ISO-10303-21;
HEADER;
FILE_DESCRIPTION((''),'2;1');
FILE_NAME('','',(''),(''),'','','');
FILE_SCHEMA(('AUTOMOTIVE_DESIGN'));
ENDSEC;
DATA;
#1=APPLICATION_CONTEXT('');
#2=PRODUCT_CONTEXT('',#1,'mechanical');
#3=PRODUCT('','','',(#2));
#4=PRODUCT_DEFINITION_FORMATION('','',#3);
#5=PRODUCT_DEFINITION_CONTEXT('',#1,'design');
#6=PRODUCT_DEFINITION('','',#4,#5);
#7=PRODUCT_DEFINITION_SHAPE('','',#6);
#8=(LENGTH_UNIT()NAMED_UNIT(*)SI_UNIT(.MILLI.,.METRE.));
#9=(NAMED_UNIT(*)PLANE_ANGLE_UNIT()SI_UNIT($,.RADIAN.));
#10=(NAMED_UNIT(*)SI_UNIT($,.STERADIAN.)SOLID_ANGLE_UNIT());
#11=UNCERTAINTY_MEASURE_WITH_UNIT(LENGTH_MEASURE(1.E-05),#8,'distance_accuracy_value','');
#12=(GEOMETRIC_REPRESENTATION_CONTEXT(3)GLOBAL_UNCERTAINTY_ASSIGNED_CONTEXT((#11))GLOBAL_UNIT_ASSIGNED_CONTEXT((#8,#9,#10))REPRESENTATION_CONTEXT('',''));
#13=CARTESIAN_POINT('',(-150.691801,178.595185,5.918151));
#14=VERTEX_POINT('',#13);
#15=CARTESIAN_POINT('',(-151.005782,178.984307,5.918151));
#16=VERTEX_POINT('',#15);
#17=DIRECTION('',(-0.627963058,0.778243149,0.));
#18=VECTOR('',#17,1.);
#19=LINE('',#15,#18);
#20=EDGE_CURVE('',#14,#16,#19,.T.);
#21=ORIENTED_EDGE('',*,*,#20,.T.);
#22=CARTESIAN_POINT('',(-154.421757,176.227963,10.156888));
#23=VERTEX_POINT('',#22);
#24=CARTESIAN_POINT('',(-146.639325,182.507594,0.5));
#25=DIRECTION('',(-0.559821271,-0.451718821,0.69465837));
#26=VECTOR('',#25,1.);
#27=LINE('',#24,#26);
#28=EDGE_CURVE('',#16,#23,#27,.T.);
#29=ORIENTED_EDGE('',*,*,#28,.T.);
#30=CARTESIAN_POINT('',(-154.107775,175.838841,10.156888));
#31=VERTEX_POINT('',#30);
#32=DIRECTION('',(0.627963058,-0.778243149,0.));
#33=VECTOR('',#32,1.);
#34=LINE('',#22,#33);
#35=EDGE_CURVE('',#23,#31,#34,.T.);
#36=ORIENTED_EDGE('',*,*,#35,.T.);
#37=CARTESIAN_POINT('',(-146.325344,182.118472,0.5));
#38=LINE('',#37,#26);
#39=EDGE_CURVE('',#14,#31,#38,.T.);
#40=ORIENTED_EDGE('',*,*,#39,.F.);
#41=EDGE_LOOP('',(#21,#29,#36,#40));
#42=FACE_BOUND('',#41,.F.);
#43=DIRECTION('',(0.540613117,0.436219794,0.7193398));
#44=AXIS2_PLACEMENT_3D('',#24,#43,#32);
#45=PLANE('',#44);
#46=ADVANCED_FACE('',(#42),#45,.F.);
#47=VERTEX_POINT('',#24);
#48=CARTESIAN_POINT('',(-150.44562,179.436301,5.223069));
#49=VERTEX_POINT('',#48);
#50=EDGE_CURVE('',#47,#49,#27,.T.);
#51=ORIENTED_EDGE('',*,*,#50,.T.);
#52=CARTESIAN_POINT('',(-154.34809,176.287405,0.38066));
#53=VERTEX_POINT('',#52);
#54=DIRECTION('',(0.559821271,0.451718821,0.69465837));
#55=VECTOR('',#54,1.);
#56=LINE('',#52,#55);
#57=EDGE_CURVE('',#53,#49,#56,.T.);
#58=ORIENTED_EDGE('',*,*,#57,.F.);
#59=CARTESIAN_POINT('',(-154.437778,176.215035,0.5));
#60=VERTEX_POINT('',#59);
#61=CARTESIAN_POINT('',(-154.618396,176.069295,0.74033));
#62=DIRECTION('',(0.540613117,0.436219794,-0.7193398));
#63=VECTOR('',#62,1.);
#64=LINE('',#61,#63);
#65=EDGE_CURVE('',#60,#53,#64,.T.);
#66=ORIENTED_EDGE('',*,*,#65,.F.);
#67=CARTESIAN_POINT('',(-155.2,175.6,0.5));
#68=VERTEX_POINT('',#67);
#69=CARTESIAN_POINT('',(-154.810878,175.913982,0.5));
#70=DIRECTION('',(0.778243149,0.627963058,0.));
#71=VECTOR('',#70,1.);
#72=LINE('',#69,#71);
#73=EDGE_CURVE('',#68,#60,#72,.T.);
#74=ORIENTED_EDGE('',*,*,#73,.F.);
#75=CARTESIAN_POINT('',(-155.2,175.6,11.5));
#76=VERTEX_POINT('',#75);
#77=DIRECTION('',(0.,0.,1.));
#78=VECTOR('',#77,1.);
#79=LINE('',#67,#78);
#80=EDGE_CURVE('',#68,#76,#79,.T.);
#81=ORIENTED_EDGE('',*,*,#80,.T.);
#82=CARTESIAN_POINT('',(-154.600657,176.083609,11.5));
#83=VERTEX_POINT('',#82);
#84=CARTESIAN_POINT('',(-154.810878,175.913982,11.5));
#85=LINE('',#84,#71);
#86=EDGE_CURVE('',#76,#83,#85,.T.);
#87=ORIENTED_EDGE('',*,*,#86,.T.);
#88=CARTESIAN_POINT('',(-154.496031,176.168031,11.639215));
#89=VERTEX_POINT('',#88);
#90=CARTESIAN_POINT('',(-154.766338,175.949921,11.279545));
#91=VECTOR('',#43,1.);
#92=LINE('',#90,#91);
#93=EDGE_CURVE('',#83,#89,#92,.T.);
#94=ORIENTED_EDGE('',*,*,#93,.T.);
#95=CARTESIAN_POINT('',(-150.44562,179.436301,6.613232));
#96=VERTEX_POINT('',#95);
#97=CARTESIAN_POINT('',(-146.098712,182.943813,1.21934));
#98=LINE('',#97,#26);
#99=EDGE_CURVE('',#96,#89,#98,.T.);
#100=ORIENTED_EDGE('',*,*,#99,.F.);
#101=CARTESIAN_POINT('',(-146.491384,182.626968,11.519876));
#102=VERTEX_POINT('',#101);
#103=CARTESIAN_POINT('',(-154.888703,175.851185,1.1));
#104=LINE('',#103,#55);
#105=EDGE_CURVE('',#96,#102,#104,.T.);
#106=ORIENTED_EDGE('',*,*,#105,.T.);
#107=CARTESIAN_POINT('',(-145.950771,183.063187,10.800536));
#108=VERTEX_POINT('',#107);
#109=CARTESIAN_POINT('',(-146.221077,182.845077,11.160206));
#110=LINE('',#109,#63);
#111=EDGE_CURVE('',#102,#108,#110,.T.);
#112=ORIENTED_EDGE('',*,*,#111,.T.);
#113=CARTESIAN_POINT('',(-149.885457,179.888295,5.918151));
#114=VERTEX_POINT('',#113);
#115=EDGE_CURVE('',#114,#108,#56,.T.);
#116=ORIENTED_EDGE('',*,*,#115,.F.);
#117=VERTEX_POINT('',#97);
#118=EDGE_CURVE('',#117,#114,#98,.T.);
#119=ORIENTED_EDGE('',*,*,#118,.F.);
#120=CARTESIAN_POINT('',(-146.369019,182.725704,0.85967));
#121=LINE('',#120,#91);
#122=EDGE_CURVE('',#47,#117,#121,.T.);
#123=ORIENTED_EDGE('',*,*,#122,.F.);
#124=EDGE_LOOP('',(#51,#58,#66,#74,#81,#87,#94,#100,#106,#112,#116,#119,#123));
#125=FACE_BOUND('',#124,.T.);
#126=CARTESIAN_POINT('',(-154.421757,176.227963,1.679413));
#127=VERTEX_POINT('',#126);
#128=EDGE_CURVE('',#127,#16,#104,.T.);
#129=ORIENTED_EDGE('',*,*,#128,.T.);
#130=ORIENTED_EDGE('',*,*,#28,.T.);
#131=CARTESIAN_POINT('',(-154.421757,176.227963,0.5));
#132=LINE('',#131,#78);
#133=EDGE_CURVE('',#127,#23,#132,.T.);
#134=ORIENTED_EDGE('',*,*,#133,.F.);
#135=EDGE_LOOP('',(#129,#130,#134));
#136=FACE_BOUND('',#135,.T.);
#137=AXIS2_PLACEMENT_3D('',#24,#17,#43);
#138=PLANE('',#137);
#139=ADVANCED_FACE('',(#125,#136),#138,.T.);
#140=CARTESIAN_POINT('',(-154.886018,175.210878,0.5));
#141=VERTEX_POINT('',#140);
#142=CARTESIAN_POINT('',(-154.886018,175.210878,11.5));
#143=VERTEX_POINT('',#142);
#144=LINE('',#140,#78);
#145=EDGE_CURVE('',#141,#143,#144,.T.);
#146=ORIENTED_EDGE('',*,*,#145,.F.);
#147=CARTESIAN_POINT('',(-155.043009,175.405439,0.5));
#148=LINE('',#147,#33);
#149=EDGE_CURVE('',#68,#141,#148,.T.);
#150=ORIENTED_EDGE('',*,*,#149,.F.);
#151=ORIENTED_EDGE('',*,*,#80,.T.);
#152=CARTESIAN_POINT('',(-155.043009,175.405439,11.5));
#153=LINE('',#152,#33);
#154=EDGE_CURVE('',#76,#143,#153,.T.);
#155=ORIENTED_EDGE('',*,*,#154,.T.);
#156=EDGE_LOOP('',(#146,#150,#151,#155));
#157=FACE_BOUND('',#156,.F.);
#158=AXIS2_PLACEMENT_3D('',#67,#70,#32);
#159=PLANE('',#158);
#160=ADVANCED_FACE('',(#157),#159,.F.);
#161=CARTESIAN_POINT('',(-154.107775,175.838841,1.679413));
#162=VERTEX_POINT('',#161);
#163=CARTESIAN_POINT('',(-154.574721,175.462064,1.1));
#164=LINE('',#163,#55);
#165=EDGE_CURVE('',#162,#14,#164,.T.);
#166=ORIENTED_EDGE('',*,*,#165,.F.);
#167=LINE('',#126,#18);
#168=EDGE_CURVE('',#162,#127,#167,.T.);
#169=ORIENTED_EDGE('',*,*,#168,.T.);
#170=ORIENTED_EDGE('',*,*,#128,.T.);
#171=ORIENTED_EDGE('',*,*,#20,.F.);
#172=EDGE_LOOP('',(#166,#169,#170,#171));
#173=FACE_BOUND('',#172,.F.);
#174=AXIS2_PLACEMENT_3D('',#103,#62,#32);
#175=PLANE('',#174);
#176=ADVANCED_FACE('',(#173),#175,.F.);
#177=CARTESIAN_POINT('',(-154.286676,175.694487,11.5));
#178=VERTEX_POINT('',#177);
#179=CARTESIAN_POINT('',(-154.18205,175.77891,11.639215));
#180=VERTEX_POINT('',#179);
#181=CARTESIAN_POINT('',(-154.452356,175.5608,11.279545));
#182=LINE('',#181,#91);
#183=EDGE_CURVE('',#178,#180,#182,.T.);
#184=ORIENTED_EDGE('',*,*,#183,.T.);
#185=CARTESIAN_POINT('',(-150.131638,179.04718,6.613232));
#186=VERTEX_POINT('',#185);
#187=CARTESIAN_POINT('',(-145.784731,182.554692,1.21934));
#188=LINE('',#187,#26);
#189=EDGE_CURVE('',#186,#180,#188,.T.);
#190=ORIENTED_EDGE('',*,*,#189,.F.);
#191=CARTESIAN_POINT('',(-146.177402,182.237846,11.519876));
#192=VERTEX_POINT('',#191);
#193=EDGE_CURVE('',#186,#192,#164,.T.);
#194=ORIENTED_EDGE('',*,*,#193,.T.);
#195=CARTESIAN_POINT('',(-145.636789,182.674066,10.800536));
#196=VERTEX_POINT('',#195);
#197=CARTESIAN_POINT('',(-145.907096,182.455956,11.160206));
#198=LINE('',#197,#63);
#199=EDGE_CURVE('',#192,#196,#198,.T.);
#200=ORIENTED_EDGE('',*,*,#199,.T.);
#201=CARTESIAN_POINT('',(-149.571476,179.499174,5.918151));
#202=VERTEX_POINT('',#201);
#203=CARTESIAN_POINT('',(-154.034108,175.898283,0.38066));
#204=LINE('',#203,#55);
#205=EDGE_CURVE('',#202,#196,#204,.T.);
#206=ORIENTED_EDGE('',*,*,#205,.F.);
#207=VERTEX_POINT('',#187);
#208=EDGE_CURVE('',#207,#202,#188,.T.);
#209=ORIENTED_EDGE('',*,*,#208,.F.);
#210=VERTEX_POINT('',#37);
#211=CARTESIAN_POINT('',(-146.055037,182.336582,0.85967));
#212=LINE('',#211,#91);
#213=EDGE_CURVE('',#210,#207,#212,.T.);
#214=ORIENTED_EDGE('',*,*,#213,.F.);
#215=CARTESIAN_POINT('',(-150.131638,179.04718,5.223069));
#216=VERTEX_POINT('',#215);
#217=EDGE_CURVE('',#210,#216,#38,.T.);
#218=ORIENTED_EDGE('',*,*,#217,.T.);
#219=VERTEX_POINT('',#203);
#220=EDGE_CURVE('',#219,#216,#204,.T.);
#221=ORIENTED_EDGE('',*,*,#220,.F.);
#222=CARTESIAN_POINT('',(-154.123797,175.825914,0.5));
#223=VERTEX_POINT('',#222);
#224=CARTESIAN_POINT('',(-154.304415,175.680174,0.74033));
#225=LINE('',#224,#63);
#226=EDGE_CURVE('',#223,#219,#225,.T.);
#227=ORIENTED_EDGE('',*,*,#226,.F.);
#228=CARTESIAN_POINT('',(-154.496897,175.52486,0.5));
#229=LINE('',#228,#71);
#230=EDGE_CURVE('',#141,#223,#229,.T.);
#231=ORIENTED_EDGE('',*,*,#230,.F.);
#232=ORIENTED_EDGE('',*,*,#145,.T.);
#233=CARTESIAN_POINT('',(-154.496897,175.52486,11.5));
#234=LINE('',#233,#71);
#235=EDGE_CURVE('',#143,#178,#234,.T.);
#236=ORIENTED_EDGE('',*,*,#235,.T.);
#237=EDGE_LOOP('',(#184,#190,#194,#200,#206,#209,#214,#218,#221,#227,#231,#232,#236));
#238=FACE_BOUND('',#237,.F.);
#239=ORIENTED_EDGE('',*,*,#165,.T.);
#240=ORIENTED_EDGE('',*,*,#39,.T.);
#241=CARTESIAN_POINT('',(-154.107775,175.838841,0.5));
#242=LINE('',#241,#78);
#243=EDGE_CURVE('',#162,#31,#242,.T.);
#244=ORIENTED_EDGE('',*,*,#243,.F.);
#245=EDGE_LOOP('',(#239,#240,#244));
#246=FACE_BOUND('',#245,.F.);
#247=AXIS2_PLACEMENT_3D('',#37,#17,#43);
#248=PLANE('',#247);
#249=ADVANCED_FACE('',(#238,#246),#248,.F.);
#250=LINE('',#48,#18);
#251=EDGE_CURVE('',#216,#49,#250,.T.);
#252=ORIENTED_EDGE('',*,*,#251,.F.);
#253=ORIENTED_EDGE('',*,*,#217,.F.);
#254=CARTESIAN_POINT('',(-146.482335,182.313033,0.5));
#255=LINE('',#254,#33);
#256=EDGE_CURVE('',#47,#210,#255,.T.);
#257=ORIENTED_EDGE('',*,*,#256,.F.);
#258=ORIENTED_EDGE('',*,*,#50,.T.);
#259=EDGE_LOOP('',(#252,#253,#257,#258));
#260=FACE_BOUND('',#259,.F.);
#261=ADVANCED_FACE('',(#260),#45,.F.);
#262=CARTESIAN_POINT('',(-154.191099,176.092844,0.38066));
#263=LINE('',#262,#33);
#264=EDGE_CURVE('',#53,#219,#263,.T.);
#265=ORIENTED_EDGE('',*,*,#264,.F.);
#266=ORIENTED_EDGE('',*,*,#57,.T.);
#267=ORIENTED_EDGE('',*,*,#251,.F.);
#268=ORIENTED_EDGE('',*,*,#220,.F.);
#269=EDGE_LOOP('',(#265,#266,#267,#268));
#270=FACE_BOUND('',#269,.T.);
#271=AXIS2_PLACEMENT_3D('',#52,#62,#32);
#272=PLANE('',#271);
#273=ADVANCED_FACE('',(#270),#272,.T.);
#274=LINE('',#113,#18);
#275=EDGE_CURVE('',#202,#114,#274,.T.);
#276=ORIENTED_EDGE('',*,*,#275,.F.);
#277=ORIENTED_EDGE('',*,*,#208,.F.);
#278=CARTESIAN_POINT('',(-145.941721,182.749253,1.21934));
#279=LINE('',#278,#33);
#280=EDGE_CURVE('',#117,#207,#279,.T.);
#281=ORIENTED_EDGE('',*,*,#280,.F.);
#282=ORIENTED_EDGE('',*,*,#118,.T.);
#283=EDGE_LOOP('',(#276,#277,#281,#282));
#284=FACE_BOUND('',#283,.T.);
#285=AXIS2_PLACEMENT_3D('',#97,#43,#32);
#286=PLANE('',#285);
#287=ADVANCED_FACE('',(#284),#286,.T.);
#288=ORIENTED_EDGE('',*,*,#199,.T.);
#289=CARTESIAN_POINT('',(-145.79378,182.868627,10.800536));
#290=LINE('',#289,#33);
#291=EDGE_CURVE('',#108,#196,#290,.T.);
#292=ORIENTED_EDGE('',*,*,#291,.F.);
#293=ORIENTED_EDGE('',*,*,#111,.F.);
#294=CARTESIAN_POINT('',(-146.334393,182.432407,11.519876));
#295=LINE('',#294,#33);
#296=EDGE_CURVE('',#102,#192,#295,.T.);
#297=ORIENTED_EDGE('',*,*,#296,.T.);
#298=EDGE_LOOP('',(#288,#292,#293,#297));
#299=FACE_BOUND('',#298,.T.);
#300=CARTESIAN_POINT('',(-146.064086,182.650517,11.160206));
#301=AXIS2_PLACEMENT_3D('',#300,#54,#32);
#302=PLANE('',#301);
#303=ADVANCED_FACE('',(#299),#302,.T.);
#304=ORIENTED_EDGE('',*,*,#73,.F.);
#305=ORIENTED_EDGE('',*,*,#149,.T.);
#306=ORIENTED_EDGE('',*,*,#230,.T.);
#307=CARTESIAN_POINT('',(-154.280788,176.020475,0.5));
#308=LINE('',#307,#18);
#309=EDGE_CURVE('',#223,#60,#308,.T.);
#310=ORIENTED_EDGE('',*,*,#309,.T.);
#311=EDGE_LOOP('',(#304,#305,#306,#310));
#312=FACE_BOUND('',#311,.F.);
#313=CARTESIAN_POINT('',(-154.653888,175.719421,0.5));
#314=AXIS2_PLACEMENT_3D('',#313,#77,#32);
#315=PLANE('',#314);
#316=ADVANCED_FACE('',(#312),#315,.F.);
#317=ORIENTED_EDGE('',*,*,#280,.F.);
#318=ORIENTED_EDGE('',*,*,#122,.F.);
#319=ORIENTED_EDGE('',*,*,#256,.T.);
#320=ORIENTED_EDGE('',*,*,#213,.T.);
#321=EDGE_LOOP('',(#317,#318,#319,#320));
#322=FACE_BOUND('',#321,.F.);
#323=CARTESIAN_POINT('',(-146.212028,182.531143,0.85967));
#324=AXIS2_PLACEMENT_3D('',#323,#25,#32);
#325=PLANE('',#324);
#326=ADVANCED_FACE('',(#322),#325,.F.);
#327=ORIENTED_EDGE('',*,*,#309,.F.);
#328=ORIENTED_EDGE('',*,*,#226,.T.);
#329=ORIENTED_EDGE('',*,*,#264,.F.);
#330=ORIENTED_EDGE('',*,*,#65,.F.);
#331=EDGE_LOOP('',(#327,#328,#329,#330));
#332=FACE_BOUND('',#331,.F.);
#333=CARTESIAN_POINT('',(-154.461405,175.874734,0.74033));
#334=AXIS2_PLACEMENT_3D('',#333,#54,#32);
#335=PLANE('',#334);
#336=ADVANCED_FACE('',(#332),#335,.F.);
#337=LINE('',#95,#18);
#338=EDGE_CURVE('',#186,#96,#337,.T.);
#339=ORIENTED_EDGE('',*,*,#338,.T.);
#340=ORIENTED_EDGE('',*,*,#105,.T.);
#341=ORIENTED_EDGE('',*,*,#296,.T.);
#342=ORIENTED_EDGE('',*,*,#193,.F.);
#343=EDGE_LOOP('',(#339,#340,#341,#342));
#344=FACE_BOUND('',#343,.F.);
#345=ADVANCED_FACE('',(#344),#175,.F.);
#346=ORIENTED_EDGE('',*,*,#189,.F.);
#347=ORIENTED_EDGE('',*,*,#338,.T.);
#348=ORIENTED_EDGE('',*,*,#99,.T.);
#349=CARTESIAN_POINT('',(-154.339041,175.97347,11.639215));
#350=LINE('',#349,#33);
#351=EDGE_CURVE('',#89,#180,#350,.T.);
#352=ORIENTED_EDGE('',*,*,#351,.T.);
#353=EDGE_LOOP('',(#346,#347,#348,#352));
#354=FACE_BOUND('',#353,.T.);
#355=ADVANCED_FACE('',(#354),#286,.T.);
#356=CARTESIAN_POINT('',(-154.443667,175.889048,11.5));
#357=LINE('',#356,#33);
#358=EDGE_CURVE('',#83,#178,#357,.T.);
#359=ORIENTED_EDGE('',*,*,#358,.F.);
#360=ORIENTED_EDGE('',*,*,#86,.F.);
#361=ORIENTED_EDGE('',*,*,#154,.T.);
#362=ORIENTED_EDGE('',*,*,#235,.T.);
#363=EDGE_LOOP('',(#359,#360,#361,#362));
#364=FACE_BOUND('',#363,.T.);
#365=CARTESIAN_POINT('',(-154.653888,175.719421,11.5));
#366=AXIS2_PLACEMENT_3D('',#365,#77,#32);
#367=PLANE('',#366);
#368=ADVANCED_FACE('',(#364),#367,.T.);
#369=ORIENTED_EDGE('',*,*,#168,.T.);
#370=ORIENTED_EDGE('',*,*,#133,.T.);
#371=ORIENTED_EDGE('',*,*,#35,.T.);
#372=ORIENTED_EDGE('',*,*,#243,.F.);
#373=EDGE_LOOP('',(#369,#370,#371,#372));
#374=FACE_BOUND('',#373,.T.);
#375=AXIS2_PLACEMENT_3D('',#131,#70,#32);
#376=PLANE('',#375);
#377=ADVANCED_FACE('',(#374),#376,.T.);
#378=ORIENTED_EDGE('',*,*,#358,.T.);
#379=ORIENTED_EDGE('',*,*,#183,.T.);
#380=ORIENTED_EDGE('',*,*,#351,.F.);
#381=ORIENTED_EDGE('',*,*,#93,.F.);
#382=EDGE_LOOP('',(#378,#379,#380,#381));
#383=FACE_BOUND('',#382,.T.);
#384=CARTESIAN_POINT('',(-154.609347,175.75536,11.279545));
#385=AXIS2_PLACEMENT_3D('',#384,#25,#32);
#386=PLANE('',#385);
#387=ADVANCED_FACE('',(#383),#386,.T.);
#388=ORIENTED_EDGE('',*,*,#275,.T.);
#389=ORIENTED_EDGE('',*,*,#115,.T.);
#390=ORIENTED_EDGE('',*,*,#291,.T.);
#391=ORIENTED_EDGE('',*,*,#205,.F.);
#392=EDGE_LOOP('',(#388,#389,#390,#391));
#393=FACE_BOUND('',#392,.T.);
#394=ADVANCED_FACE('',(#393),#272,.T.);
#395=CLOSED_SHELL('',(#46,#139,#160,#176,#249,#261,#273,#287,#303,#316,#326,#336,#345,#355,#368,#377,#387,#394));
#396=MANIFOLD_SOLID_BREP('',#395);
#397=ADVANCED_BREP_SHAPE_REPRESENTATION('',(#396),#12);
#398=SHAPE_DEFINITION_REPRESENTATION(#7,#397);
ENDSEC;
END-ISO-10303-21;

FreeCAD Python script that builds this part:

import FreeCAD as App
import Part
import Sketcher
from FreeCAD import Vector

doc = App.newDocument("Part")
params = doc.addObject("Spreadsheet::Sheet", "Params")
for row, (alias, value) in enumerate([
    ("sketch1_height", "1 mm"),
    ("sketch1_width", "0.5 mm"),
    ("pad1_length", "15 mm"),
    ("sketch2_height", "1 mm"),
    ("sketch2_width", "0.5 mm"),
    ("pad2_length", "15 mm"),
    ("sketch3_height", "1 mm"),
    ("sketch3_width", "0.5 mm"),
    ("pad3_length", "11 mm"),
], start=1):
    params.set(f"A{row}", alias)
    params.set(f"B{row}", "=" + value)
    params.setAlias(f"B{row}", alias)

body = doc.addObject("PartDesign::Body", "Body")

# Sketch on XY plane
sketch1 = body.newObject("Sketcher::SketchObject", "Sketch")
sketch1.AttachmentSupport = (doc.getObject("XY_Plane"), [""])
sketch1.MapMode = "FlatFace"
sketch1.addGeometry([
    Part.LineSegment(Vector(0, 1, 0), Vector(0, 0, 0)),
    Part.LineSegment(Vector(0, 0, 0), Vector(0.5, 0, 0)),
    Part.LineSegment(Vector(0.5, 0, 0), Vector(0.5, 1, 0)),
    Part.LineSegment(Vector(0.5, 1, 0), Vector(0, 1, 0)),
], False)
sketch1.addConstraint([
    Sketcher.Constraint("Coincident", 0, 2, 1, 1),
    Sketcher.Constraint("Coincident", 1, 2, 2, 1),
    Sketcher.Constraint("Coincident", 2, 2, 3, 1),
    Sketcher.Constraint("Coincident", 3, 2, 0, 1),
    Sketcher.Constraint("Vertical", 0),
    Sketcher.Constraint("Horizontal", 1),
    Sketcher.Constraint("Vertical", 2),
    Sketcher.Constraint("Horizontal", 3),
    Sketcher.Constraint("Coincident", 0, 2, -1, 1),
    Sketcher.Constraint("DistanceY", 0, 2, 0, 1, 1.0),
    Sketcher.Constraint("DistanceX", 1, 1, 1, 2, 0.5),
])
sketch1.setExpression("Constraints[9]", "Params.sketch1_height")
sketch1.setExpression("Constraints[10]", "Params.sketch1_width")
pad1 = body.newObject("PartDesign::Pad", "Pad")
pad1.Profile = sketch1
pad1.setExpression("Length", "Params.pad1_length")
body2 = doc.addObject("PartDesign::Body", "Body001")
doc.recompute()

body.Placement = App.Placement(Vector(0, 0, 0), App.Rotation(Vector(1, 0, 0), 46))
boolean = body2.newObject("PartDesign::Boolean", "Boolean")
boolean.Type = "Fuse"
boolean.addObjects([body])
body3 = doc.addObject("PartDesign::Body", "Body002")
doc.recompute()

body2.Placement = App.Placement(Vector(0, 11, 0.5), App.Rotation(Vector(0, 0, 1), 0))
boolean2 = body3.newObject("PartDesign::Boolean", "Boolean001")
boolean2.Type = "Fuse"
boolean2.addObjects([body2])
body4 = doc.addObject("PartDesign::Body", "Body003")

# Sketch on XY plane
sketch2 = body4.newObject("Sketcher::SketchObject", "Sketch001")
sketch2.AttachmentSupport = (doc.getObject("XY_Plane003"), [""])
sketch2.MapMode = "FlatFace"
sketch2.addGeometry([
    Part.LineSegment(Vector(0, 1, 0), Vector(0, 0, 0)),
    Part.LineSegment(Vector(0, 0, 0), Vector(0.5, 0, 0)),
    Part.LineSegment(Vector(0.5, 0, 0), Vector(0.5, 1, 0)),
    Part.LineSegment(Vector(0.5, 1, 0), Vector(0, 1, 0)),
], False)
sketch2.addConstraint([
    Sketcher.Constraint("Coincident", 0, 2, 1, 1),
    Sketcher.Constraint("Coincident", 1, 2, 2, 1),
    Sketcher.Constraint("Coincident", 2, 2, 3, 1),
    Sketcher.Constraint("Coincident", 3, 2, 0, 1),
    Sketcher.Constraint("Vertical", 0),
    Sketcher.Constraint("Horizontal", 1),
    Sketcher.Constraint("Vertical", 2),
    Sketcher.Constraint("Horizontal", 3),
    Sketcher.Constraint("Coincident", 0, 2, -1, 1),
    Sketcher.Constraint("DistanceY", 0, 2, 0, 1, 1.0),
    Sketcher.Constraint("DistanceX", 1, 1, 1, 2, 0.5),
])
sketch2.setExpression("Constraints[9]", "Params.sketch2_height")
sketch2.setExpression("Constraints[10]", "Params.sketch2_width")
pad2 = body4.newObject("PartDesign::Pad", "Pad001")
pad2.Profile = sketch2
pad2.setExpression("Length", "Params.pad2_length")
body5 = doc.addObject("PartDesign::Body", "Body004")
doc.recompute()

body4.Placement = App.Placement(Vector(0, 0, 0), App.Rotation(Vector(1, 0, 0), 314))
boolean3 = body5.newObject("PartDesign::Boolean", "Boolean002")
boolean3.Type = "Fuse"
boolean3.addObjects([body4])
body6 = doc.addObject("PartDesign::Body", "Body005")
doc.recompute()

body5.Placement = App.Placement(Vector(0, 0.4, 1.1), App.Rotation(Vector(0, 0, 1), 0))
boolean4 = body6.newObject("PartDesign::Boolean", "Boolean003")
boolean4.Type = "Fuse"
boolean4.addObjects([body5])
body7 = doc.addObject("PartDesign::Body", "Body006")

# Sketch on XY plane
sketch3 = body7.newObject("Sketcher::SketchObject", "Sketch002")
sketch3.AttachmentSupport = (doc.getObject("XY_Plane006"), [""])
sketch3.MapMode = "FlatFace"
sketch3.AttachmentOffset = App.Placement(Vector(0, 0, 0.5), App.Rotation())
sketch3.addGeometry([
    Part.LineSegment(Vector(0, 1, 0), Vector(0, 0, 0)),
    Part.LineSegment(Vector(0, 0, 0), Vector(0.5, 0, 0)),
    Part.LineSegment(Vector(0.5, 0, 0), Vector(0.5, 1, 0)),
    Part.LineSegment(Vector(0.5, 1, 0), Vector(0, 1, 0)),
], False)
sketch3.addConstraint([
    Sketcher.Constraint("Coincident", 0, 2, 1, 1),
    Sketcher.Constraint("Coincident", 1, 2, 2, 1),
    Sketcher.Constraint("Coincident", 2, 2, 3, 1),
    Sketcher.Constraint("Coincident", 3, 2, 0, 1),
    Sketcher.Constraint("Vertical", 0),
    Sketcher.Constraint("Horizontal", 1),
    Sketcher.Constraint("Vertical", 2),
    Sketcher.Constraint("Horizontal", 3),
    Sketcher.Constraint("Coincident", 0, 2, -1, 1),
    Sketcher.Constraint("DistanceY", 0, 2, 0, 1, 1.0),
    Sketcher.Constraint("DistanceX", 1, 1, 1, 2, 0.5),
])
sketch3.setExpression("Constraints[9]", "Params.sketch3_height")
sketch3.setExpression("Constraints[10]", "Params.sketch3_width")
pad3 = body7.newObject("PartDesign::Pad", "Pad002")
pad3.Profile = sketch3
pad3.setExpression("Length", "Params.pad3_length")
doc.recompute()

boolean5 = body7.newObject("PartDesign::Boolean", "Boolean004")
boolean5.Type = "Fuse"
boolean5.addObjects([body3])
doc.recompute()

boolean6 = body7.newObject("PartDesign::Boolean", "Boolean005")
boolean6.Type = "Fuse"
boolean6.addObjects([body6])
body8 = doc.addObject("PartDesign::Body", "Body007")
doc.recompute()

body7.Placement = App.Placement(Vector(-155.2, 175.6, 0), App.Rotation(Vector(0, 0, 1), 308.9))
boolean7 = body8.newObject("PartDesign::Boolean", "Boolean006")
boolean7.Type = "Fuse"
boolean7.addObjects([body7])

doc.recompute()
